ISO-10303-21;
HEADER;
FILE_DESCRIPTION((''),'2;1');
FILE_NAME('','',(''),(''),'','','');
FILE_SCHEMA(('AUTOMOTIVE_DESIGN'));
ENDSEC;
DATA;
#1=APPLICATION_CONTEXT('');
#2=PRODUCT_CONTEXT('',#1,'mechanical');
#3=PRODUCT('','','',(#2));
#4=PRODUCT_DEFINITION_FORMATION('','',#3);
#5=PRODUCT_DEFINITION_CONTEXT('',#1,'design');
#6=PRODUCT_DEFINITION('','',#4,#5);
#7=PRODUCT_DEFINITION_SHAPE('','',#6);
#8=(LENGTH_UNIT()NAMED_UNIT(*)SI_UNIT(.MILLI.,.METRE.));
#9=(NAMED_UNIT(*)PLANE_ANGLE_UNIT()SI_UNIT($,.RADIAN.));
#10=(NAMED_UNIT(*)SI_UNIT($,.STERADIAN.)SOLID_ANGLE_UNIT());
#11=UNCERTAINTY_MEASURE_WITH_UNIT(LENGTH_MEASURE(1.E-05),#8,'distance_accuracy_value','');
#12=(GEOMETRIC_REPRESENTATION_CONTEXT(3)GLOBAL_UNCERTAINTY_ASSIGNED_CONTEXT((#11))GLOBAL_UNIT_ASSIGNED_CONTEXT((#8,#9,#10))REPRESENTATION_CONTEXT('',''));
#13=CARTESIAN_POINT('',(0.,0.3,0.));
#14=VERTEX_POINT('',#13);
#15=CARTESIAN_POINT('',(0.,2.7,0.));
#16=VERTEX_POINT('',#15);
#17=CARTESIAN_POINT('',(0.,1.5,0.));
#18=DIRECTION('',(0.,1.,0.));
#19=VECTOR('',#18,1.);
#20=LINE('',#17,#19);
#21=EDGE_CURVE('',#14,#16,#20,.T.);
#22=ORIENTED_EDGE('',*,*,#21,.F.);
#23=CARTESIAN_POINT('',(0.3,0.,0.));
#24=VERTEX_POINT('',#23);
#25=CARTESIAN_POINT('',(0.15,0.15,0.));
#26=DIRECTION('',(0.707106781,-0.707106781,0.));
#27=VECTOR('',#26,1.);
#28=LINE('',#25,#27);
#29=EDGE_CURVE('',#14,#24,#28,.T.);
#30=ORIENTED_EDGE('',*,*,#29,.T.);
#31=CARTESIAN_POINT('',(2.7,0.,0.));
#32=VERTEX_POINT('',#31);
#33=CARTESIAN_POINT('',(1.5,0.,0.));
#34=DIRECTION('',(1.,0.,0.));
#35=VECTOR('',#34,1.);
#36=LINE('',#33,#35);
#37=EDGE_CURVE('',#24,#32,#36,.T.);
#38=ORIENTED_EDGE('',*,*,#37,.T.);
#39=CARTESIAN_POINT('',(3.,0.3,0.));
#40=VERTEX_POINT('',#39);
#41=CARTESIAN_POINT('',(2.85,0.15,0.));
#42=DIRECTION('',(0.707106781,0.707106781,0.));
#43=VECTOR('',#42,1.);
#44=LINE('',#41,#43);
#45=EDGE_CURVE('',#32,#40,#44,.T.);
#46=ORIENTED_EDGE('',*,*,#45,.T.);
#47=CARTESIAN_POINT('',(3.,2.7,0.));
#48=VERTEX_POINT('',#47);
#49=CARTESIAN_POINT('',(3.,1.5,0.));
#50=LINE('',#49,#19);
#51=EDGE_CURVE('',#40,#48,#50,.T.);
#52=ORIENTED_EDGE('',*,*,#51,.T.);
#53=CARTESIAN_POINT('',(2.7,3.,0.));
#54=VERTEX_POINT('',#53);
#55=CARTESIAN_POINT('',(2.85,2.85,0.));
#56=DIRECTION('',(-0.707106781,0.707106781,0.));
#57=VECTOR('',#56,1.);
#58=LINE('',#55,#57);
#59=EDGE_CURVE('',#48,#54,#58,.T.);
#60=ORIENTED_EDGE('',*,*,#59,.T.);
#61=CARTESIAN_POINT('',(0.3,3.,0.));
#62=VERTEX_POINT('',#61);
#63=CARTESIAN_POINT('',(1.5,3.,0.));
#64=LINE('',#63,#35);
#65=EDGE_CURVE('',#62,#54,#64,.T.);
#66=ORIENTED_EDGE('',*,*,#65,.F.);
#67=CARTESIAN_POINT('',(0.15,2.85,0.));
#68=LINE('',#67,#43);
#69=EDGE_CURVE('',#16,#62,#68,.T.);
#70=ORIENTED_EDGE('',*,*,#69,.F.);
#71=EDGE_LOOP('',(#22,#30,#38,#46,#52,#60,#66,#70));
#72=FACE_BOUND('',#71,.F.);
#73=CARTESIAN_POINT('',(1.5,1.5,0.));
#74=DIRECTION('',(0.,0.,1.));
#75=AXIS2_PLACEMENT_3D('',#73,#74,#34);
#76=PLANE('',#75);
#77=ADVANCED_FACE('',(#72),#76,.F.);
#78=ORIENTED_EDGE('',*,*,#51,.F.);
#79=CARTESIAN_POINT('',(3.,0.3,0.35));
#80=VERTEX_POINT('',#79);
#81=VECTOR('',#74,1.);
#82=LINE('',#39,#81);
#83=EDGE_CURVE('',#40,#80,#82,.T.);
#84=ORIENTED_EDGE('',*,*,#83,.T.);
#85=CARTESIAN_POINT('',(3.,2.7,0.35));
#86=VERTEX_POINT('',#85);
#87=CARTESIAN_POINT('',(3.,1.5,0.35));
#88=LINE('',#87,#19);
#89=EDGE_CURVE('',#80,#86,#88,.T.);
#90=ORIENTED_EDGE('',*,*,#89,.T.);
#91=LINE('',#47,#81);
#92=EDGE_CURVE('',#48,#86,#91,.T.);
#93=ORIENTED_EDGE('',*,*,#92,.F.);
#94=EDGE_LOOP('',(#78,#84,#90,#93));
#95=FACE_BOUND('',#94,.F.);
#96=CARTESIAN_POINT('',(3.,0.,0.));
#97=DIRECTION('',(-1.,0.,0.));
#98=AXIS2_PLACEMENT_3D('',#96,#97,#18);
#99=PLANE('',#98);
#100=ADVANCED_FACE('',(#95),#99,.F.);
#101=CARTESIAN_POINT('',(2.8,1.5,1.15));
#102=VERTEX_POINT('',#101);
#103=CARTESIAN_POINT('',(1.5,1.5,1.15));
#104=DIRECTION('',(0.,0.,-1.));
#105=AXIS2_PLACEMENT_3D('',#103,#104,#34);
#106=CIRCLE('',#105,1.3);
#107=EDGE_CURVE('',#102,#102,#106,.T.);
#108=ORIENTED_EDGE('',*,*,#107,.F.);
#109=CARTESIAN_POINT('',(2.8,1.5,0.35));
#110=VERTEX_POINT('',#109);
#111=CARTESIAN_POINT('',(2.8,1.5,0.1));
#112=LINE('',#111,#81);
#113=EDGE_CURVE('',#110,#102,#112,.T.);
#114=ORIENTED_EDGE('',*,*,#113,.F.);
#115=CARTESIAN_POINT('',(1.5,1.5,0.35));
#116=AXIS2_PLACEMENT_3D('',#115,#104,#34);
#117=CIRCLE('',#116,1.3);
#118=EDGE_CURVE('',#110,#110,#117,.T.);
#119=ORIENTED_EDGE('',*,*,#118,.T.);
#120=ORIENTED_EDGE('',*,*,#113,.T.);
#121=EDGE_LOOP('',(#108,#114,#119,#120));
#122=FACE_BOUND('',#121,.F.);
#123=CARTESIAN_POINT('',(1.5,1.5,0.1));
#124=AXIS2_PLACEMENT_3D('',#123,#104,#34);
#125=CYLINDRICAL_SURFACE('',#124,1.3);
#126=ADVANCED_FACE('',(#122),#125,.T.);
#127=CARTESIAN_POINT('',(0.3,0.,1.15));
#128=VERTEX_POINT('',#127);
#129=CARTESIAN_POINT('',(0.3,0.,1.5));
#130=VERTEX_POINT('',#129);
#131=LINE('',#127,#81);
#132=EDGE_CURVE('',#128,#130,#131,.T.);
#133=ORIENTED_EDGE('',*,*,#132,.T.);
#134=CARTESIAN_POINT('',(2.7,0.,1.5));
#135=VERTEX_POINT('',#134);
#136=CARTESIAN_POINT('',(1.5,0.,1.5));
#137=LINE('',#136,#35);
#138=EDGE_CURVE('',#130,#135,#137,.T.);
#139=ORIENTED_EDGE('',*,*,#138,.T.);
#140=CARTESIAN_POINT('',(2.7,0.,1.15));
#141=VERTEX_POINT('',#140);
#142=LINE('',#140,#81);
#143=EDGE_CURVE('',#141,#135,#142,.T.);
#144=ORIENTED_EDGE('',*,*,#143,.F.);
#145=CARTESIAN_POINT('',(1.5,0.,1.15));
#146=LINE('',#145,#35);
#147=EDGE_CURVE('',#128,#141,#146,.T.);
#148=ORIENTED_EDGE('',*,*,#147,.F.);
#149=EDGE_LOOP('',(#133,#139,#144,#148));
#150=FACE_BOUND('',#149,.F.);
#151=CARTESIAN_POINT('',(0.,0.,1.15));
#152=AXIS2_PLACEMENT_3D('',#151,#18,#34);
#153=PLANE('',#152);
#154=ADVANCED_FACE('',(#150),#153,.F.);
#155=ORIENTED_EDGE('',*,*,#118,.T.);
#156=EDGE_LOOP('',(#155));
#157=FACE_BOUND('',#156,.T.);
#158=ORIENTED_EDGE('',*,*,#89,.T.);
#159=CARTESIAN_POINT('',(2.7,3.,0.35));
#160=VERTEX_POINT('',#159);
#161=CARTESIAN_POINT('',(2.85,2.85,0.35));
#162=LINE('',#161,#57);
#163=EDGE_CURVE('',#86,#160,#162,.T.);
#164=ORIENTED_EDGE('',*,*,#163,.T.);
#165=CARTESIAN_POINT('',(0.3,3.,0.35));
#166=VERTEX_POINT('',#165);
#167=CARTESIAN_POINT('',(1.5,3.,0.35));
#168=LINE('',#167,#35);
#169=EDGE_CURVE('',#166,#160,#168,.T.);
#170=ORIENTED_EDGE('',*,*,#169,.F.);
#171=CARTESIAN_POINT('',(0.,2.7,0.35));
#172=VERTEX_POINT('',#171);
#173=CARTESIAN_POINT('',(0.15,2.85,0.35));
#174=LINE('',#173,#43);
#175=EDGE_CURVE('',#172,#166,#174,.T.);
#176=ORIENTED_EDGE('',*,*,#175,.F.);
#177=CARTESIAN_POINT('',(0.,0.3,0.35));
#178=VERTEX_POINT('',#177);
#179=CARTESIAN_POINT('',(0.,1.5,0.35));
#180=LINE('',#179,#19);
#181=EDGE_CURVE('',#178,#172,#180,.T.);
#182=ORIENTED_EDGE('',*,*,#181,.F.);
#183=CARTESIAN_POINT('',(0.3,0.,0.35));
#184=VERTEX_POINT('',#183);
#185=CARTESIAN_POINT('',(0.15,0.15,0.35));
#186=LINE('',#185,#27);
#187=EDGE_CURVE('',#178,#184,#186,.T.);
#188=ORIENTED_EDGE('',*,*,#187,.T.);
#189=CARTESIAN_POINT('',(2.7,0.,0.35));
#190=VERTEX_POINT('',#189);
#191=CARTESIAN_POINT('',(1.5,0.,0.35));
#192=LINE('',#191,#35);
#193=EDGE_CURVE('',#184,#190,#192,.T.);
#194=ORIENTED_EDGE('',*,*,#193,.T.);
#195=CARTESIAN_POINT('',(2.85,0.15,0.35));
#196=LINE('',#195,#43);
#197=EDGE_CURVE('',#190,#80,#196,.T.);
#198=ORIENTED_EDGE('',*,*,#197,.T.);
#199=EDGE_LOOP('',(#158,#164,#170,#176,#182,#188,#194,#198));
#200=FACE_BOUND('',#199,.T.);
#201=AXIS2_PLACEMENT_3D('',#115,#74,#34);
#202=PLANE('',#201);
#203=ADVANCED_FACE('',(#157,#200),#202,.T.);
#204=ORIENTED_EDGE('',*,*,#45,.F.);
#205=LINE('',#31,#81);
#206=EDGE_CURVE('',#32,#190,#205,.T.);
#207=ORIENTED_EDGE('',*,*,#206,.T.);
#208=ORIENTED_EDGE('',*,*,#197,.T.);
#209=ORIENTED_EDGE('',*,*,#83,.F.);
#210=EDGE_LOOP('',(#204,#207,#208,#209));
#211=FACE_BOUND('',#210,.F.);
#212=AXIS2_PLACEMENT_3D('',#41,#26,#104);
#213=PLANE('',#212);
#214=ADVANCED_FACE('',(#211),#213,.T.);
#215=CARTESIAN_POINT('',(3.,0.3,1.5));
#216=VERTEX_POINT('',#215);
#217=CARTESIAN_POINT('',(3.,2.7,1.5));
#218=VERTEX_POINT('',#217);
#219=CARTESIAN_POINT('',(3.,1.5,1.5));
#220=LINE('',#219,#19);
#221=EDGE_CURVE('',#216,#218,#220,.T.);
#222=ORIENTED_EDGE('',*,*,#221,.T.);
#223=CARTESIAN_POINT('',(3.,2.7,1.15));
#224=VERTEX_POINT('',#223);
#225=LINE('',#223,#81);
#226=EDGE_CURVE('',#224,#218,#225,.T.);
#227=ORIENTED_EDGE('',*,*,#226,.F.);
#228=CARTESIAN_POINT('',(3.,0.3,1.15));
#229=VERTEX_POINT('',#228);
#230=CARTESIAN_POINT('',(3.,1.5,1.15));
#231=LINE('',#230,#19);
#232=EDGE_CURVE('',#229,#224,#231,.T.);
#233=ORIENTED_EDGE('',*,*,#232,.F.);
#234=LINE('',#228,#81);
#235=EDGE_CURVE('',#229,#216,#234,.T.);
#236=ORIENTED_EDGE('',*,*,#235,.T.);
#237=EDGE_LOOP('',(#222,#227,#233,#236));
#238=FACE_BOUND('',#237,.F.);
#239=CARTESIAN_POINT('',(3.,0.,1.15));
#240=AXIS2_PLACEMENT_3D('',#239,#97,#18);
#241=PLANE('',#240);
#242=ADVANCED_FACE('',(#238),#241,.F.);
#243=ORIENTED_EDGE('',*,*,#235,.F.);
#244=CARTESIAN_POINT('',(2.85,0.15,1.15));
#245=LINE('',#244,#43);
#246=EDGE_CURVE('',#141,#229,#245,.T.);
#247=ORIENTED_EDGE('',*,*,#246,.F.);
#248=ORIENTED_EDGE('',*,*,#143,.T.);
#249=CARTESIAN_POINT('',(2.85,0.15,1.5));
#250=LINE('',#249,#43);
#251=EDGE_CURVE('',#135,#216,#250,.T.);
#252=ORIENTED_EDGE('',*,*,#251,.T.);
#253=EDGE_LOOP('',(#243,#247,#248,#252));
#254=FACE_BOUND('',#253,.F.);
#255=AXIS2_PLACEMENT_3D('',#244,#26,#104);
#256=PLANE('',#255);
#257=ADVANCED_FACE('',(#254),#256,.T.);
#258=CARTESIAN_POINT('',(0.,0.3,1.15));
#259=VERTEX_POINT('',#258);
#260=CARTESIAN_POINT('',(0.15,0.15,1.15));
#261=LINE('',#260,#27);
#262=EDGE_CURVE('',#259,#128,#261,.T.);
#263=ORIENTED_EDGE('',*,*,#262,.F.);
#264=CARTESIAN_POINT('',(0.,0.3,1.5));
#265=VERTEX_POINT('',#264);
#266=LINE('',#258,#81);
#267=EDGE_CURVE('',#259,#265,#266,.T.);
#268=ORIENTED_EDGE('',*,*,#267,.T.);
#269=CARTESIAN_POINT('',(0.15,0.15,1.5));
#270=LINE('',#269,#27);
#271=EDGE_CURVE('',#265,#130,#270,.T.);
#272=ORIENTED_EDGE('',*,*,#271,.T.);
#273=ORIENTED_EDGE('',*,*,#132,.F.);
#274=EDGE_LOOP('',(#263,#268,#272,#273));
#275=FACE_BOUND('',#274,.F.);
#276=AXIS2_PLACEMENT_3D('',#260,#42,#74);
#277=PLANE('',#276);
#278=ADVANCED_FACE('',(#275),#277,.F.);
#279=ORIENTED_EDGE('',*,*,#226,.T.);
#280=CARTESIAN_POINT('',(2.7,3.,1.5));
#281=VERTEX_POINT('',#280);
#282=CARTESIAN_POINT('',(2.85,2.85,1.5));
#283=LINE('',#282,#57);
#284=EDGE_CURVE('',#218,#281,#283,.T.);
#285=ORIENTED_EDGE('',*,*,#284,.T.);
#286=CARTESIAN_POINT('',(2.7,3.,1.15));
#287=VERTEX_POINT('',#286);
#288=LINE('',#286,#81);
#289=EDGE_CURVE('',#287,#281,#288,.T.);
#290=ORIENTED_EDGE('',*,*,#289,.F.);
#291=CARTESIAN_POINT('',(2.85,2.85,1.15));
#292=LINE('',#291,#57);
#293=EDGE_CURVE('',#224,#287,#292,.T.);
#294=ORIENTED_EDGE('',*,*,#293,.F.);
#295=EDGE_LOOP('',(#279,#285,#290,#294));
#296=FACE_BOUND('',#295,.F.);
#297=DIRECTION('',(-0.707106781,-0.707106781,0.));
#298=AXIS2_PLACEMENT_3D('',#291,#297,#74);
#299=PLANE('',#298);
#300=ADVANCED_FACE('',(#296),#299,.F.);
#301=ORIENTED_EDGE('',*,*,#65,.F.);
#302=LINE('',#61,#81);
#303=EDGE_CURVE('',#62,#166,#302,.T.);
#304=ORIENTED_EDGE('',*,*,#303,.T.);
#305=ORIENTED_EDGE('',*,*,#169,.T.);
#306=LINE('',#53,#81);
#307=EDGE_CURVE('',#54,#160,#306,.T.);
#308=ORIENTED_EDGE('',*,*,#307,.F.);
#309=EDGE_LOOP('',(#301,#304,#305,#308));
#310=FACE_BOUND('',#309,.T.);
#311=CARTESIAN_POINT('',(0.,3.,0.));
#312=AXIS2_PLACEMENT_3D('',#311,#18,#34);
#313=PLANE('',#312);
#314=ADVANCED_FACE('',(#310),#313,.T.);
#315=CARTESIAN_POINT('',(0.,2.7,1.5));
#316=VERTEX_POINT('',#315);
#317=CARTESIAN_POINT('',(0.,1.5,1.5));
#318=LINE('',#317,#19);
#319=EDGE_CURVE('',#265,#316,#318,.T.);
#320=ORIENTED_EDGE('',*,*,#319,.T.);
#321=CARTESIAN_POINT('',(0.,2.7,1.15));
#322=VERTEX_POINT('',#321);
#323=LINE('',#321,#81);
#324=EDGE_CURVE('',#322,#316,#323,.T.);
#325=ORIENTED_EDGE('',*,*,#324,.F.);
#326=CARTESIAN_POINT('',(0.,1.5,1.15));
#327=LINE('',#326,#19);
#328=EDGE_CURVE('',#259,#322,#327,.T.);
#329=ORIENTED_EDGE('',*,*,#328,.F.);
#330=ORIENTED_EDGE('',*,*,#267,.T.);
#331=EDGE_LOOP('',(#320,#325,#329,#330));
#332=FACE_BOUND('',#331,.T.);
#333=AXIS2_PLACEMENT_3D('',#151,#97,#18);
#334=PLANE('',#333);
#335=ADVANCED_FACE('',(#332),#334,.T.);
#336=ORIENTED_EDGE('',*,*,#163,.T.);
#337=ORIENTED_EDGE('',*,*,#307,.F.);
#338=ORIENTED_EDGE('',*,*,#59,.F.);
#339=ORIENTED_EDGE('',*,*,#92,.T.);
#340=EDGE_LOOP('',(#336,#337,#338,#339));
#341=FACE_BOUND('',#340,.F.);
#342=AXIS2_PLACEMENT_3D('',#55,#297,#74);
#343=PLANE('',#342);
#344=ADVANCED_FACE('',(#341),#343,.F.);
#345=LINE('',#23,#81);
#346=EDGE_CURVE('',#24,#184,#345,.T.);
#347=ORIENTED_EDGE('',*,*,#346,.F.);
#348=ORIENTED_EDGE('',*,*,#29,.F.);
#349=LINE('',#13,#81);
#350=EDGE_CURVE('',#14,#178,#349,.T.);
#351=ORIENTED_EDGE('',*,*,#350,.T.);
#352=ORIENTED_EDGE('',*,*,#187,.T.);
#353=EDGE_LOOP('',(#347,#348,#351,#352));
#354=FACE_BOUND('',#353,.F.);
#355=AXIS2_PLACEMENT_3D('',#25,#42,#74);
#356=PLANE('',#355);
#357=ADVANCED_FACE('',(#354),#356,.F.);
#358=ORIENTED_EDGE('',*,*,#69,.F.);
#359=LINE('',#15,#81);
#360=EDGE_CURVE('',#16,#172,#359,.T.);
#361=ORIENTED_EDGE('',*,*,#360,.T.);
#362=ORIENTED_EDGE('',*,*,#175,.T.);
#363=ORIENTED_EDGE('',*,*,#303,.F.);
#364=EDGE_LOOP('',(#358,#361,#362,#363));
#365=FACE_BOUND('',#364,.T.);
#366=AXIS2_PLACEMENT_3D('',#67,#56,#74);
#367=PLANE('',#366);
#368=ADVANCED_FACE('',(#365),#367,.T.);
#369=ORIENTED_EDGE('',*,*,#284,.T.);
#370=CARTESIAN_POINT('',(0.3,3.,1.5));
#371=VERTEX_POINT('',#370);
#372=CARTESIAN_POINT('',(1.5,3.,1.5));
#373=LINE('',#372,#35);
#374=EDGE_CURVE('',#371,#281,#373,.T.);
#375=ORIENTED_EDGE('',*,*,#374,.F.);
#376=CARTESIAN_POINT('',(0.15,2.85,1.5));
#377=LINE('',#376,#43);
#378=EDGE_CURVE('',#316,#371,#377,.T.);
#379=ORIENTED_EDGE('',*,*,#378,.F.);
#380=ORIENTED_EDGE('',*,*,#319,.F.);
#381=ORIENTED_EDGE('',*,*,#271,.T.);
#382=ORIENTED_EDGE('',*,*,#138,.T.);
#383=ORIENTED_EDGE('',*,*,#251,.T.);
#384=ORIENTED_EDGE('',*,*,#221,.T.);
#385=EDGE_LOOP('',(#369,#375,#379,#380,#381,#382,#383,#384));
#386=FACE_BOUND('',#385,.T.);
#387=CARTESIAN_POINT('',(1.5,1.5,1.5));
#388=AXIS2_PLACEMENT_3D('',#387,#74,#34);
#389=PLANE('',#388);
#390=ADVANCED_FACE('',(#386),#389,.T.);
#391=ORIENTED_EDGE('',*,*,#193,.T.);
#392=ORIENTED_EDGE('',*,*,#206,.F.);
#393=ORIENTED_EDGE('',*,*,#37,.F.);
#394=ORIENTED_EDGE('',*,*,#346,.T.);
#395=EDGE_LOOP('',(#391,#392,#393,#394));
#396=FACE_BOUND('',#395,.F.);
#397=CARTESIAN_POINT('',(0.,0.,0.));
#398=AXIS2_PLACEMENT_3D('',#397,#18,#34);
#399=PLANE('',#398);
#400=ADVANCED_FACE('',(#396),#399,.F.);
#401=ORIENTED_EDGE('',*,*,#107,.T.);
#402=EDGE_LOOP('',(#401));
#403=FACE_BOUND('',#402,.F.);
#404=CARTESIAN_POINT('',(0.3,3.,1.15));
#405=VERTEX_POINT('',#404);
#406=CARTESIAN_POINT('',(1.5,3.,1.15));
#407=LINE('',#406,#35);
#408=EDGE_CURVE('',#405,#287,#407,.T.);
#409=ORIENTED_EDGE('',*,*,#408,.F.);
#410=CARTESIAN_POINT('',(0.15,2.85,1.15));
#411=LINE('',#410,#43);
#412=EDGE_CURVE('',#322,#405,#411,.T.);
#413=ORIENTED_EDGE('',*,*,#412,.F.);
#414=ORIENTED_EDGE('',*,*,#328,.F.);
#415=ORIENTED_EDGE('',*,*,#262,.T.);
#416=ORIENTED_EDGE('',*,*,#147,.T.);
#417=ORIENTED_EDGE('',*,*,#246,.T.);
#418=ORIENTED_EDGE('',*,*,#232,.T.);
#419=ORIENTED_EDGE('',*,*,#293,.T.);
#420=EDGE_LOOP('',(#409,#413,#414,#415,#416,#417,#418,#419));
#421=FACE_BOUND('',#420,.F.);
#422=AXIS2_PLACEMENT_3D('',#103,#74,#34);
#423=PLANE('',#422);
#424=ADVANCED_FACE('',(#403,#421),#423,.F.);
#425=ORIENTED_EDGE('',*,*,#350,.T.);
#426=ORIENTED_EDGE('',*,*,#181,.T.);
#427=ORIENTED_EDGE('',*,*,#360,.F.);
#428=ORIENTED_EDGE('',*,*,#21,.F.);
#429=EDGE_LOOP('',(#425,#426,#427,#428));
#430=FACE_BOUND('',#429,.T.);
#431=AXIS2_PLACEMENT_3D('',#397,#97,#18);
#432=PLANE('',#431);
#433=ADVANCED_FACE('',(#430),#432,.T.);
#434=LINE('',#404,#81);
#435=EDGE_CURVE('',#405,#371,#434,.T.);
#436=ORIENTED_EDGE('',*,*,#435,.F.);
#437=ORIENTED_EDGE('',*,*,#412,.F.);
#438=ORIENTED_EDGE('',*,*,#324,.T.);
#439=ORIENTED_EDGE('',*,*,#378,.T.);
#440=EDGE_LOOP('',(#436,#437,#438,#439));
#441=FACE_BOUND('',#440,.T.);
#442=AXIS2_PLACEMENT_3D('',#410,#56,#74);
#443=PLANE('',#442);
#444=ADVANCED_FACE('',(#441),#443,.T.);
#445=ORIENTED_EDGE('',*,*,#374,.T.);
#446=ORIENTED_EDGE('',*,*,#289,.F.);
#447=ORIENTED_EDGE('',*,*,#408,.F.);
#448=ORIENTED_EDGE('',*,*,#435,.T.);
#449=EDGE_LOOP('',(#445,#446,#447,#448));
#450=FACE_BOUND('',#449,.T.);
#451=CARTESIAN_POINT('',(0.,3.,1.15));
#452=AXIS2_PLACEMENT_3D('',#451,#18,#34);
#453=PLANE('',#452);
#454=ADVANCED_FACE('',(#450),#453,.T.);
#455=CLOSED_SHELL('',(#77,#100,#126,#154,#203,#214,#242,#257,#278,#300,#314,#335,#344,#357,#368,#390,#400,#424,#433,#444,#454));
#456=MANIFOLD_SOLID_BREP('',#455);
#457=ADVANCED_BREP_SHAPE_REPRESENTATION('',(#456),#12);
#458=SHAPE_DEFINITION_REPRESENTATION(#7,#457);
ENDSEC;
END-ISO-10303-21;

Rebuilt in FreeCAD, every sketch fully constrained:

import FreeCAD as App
import Part
import Sketcher
from FreeCAD import Vector
Q = App.Units.Quantity


def edges_at(feature, points):
    """Names of the edges that pass closest to the given points."""
    edges = feature.Shape.Edges
    near = lambda p: min(range(len(edges)), key=lambda i: edges[i].distToShape(Part.Vertex(*p))[0])
    return sorted({f"Edge{near(p) + 1}" for p in points})


def add_polygon(sketch, points):
    """Adds a closed chain of lines whose ends are joined by coincident constraints."""
    first, n = sketch.GeometryCount, len(points)
    for a, b in zip(points, points[1:] + points[:1]):
        sketch.addGeometry(Part.LineSegment(App.Vector(*a, 0), App.Vector(*b, 0)), False)
    for i in range(n):
        sketch.addConstraint(Sketcher.Constraint("Coincident", first + i, 2, first + (i + 1) % n, 1))

doc = App.newDocument("Part")
body = doc.addObject("PartDesign::Body", "Body")

# Sketch on XY plane
sketch1 = body.newObject("Sketcher::SketchObject", "Sketch")
sketch1.AttachmentSupport = (doc.getObject("XY_Plane"), [""])
sketch1.MapMode = "FlatFace"
add_polygon(sketch1, [(0, 3), (0, 0), (3, 0), (3, 3)])  # lines 0-3
sketch1.addConstraint(Sketcher.Constraint("Vertical", 0))
sketch1.addConstraint(Sketcher.Constraint("Horizontal", 1))
sketch1.addConstraint(Sketcher.Constraint("Vertical", 2))
sketch1.addConstraint(Sketcher.Constraint("Horizontal", 3))
sketch1.addConstraint(Sketcher.Constraint("Coincident", 0, 2, -1, 1))
sketch1.addConstraint(Sketcher.Constraint("Equal", 3, 0))
sketch1.addConstraint(Sketcher.Constraint("DistanceX", 1, 1, 1, 2, Q("3 mm")))
pad1 = body.newObject("PartDesign::Pad", "Pad")
pad1.Profile = sketch1
pad1.Length = 0.35
doc.recompute()

chamfer = body.newObject("PartDesign::Chamfer", "Chamfer")
chamfer.Base = (pad1, edges_at(pad1, [
    (0, 0, 0.175),
    (0, 3, 0.175),
    (3, 0, 0.175),
    (3, 3, 0.175),
]))
chamfer.Size = 0.3
body2 = doc.addObject("PartDesign::Body", "Body001")
doc.recompute()

body.Placement = App.Placement(Vector(0, 0, 1.15), App.Rotation(Vector(0, 0, 1), 0))
boolean = body2.newObject("PartDesign::Boolean", "Boolean")
boolean.Type = "Fuse"
boolean.addObjects([body])
body3 = doc.addObject("PartDesign::Body", "Body002")

# Sketch on XY plane
sketch2 = body3.newObject("Sketcher::SketchObject", "Sketch001")
sketch2.AttachmentSupport = (doc.getObject("XY_Plane002"), [""])
sketch2.MapMode = "FlatFace"
sketch2.AttachmentOffset = App.Placement(Vector(0, 0, 0.1), App.Rotation())
sketch2.addGeometry(Part.Circle(Vector(1.5, 1.5, 0), Vector(0, 0, 1), 1.3), False)
sketch2.addConstraint(Sketcher.Constraint("Diameter", 0, Q("2.6 mm")))
sketch2.addConstraint(Sketcher.Constraint("DistanceX", -1, 1, 0, 3, Q("1.5 mm")))
sketch2.addConstraint(Sketcher.Constraint("DistanceY", -1, 1, 0, 3, Q("1.5 mm")))
pad2 = body3.newObject("PartDesign::Pad", "Pad001")
pad2.Profile = sketch2
pad2.Length = 1.3
body4 = doc.addObject("PartDesign::Body", "Body003")
body4.AllowCompound = True

# Sketch on XY plane
sketch3 = body4.newObject("Sketcher::SketchObject", "Sketch002")
sketch3.AttachmentSupport = (doc.getObject("XY_Plane003"), [""])
sketch3.MapMode = "FlatFace"
add_polygon(sketch3, [(0, 3), (0, 0), (3, 0), (3, 3)])  # lines 0-3
sketch3.addConstraint(Sketcher.Constraint("Vertical", 0))
sketch3.addConstraint(Sketcher.Constraint("Horizontal", 1))
sketch3.addConstraint(Sketcher.Constraint("Vertical", 2))
sketch3.addConstraint(Sketcher.Constraint("Horizontal", 3))
sketch3.addConstraint(Sketcher.Constraint("Coincident", 0, 2, -1, 1))
sketch3.addConstraint(Sketcher.Constraint("Equal", 3, 0))
sketch3.addConstraint(Sketcher.Constraint("DistanceX", 1, 1, 1, 2, Q("3 mm")))
pad3 = body4.newObject("PartDesign::Pad", "Pad002")
pad3.Profile = sketch3
pad3.Length = 0.35
doc.recompute()

chamfer2 = body4.newObject("PartDesign::Chamfer", "Chamfer001")
chamfer2.Base = (pad3, edges_at(pad3, [
    (0, 0, 0.175),
    (0, 3, 0.175),
    (3, 0, 0.175),
    (3, 3, 0.175),
]))
chamfer2.Size = 0.3
doc.recompute()

boolean2 = body4.newObject("PartDesign::Boolean", "Boolean001")
boolean2.Type = "Fuse"
boolean2.addObjects([body2])
doc.recompute()

boolean3 = body4.newObject("PartDesign::Boolean", "Boolean002")
boolean3.Type = "Fuse"
boolean3.addObjects([body3])

doc.recompute()
